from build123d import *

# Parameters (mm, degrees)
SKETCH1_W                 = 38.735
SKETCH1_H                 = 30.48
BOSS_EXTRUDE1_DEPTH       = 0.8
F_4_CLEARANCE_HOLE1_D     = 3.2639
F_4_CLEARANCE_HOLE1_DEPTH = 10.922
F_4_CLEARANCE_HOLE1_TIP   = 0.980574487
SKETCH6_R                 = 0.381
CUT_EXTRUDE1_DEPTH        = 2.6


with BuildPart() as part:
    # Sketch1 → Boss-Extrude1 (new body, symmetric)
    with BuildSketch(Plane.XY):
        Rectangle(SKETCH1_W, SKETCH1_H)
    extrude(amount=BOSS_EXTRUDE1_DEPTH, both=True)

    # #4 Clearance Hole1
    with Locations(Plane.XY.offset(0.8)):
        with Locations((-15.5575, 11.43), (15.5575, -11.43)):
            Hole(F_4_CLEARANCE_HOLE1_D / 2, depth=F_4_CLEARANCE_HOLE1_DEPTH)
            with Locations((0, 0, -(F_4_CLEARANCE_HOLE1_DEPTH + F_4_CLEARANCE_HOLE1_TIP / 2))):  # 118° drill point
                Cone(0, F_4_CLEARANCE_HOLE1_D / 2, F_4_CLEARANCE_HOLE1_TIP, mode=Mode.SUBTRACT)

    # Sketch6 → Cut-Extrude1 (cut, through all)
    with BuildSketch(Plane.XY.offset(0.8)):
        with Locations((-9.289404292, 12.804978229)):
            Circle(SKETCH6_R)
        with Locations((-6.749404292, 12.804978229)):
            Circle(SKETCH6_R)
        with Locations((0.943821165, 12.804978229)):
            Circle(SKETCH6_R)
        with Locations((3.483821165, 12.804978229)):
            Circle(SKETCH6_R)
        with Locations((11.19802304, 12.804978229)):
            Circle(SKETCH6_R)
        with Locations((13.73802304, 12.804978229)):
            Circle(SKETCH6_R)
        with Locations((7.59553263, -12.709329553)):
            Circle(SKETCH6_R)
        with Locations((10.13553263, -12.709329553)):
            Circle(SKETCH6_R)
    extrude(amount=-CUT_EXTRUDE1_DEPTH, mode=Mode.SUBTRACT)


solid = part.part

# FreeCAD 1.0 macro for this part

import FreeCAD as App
import Part
import Sketcher

V = App.Vector
Q = App.Units.Quantity

doc = App.newDocument("Part")
body = doc.addObject("PartDesign::Body", "Body")

sketch1 = body.newObject("Sketcher::SketchObject", "Sketch")
sketch1.AttachmentSupport = (doc.getObject("XY_Plane"), [""])
sketch1.MapMode = "FlatFace"
sketch1.addGeometry(Part.LineSegment(V(-19, 15, 0), V(-19, -15, 0)), False)
sketch1.addGeometry(Part.LineSegment(V(-19, -15, 0), V(19, -15, 0)), False)
sketch1.addGeometry(Part.LineSegment(V(19, -15, 0), V(19, 15, 0)), False)
sketch1.addGeometry(Part.LineSegment(V(19, 15, 0), V(-19, 15, 0)), False)
sketch1.addConstraint(Sketcher.Constraint("Coincident", 0, 2, 1, 1))
sketch1.addConstraint(Sketcher.Constraint("Coincident", 1, 2, 2, 1))
sketch1.addConstraint(Sketcher.Constraint("Coincident", 2, 2, 3, 1))
sketch1.addConstraint(Sketcher.Constraint("Coincident", 3, 2, 0, 1))
sketch1.addConstraint(Sketcher.Constraint("Vertical", 0))
sketch1.addConstraint(Sketcher.Constraint("Horizontal", 1))
sketch1.addConstraint(Sketcher.Constraint("Vertical", 2))
sketch1.addConstraint(Sketcher.Constraint("Horizontal", 3))
sketch1.addConstraint(Sketcher.Constraint("Symmetric", 0, 2, 2, 2, -1, 1))
sketch1.addConstraint(Sketcher.Constraint("DistanceY", 0, 2, 0, 1, Q("1.2 in")))
sketch1.addConstraint(Sketcher.Constraint("DistanceX", 1, 1, 1, 2, Q("1.525 in")))
pad1 = body.newObject("PartDesign::Pad", "Pad")
pad1.Profile = sketch1
pad1.Length = 1.6
pad1.Midplane = True

sketch2 = body.newObject("Sketcher::SketchObject", "Sketch001")
sketch2.AttachmentSupport = (doc.getObject("XY_Plane"), [""])
sketch2.MapMode = "FlatFace"
sketch2.AttachmentOffset = App.Placement(V(0, 0, 0.8), App.Rotation())
sketch2.addGeometry(Part.Circle(V(-15.6, 11.4, 0), V(0, 0, 1), 1.6), False)
sketch2.addGeometry(Part.Circle(V(15.6, -11.4, 0), V(0, 0, 1), 1.6), False)
sketch2.addConstraint(Sketcher.Constraint("Equal", 0, 1))
sketch2.addConstraint(Sketcher.Constraint("Symmetric", 0, 3, 1, 3, -1, 1))
sketch2.addConstraint(Sketcher.Constraint("Diameter", 0, Q("0.1285 in")))
sketch2.addConstraint(Sketcher.Constraint("DistanceY", 1, 3, 0, 3, Q("0.9 in")))
sketch2.addConstraint(Sketcher.Constraint("DistanceX", 0, 3, 1, 3, Q("1.225 in")))
doc.recompute()
hole = body.newObject("PartDesign::Hole", "Hole")
hole.Profile = sketch2
hole.ThreadType = "None"
hole.Diameter = Q("0.1285 in")
hole.DepthType = "Dimension"
hole.Depth = Q("0.43 in")
hole.DrillPoint = "Angled"
hole.DrillPointAngle = 118

sketch3 = body.newObject("Sketcher::SketchObject", "Sketch002")
sketch3.AttachmentSupport = (doc.getObject("XY_Plane"), [""])
sketch3.MapMode = "FlatFace"
sketch3.AttachmentOffset = App.Placement(V(0, 0, 0.8), App.Rotation())
sketch3.addGeometry(Part.Circle(V(-9.29, 12.8, 0), V(0, 0, 1), 0.38), False)
sketch3.addGeometry(Part.Circle(V(-6.75, 12.8, 0), V(0, 0, 1), 0.38), False)
sketch3.addGeometry(Part.Circle(V(0.94, 12.8, 0), V(0, 0, 1), 0.38), False)
sketch3.addGeometry(Part.Circle(V(3.48, 12.8, 0), V(0, 0, 1), 0.38), False)
sketch3.addGeometry(Part.Circle(V(11.2, 12.8, 0), V(0, 0, 1), 0.38), False)
sketch3.addGeometry(Part.Circle(V(13.74, 12.8, 0), V(0, 0, 1), 0.38), False)
sketch3.addGeometry(Part.Circle(V(7.6, -12.71, 0), V(0, 0, 1), 0.38), False)
sketch3.addGeometry(Part.Circle(V(10.14, -12.71, 0), V(0, 0, 1), 0.38), False)
sketch3.addConstraint(Sketcher.Constraint("Equal", 0, 1))
sketch3.addConstraint(Sketcher.Constraint("Equal", 1, 2))
sketch3.addConstraint(Sketcher.Constraint("Equal", 2, 3))
sketch3.addConstraint(Sketcher.Constraint("Equal", 3, 4))
sketch3.addConstraint(Sketcher.Constraint("Equal", 4, 5))
sketch3.addConstraint(Sketcher.Constraint("Equal", 5, 6))
sketch3.addConstraint(Sketcher.Constraint("Equal", 6, 7))
sketch3.addConstraint(Sketcher.Constraint("Horizontal", 0, 3, 1, 3))
sketch3.addConstraint(Sketcher.Constraint("Horizontal", 1, 3, 2, 3))
sketch3.addConstraint(Sketcher.Constraint("Horizontal", 2, 3, 3, 3))
sketch3.addConstraint(Sketcher.Constraint("Horizontal", 3, 3, 4, 3))
sketch3.addConstraint(Sketcher.Constraint("Horizontal", 4, 3, 5, 3))
sketch3.addConstraint(Sketcher.Constraint("Horizontal", 6, 3, 7, 3))
sketch3.addConstraint(Sketcher.Constraint("Diameter", 0, Q("0.03 in")))
sketch3.addConstraint(Sketcher.Constraint("DistanceX", 0, 3, 1, 3, Q("0.1 in")))
sketch3.addConstraint(Sketcher.Constraint("DistanceX", 2, 3, 3, 3, Q("0.1 in")))
sketch3.addConstraint(Sketcher.Constraint("DistanceX", 4, 3, 5, 3, Q("0.1 in")))
sketch3.addConstraint(Sketcher.Constraint("DistanceX", 6, 3, 7, 3, Q("0.1 in")))
sketch3.addConstraint(Sketcher.Constraint("DistanceX", 3, 3, 4, 3, Q("7.714202 mm")))
sketch3.addConstraint(Sketcher.Constraint("DistanceY", -1, 1, 0, 3, Q("12.804978 mm")))
sketch3.addConstraint(Sketcher.Constraint("DistanceX", -1, 1, 2, 3, Q("0.943821 mm")))
sketch3.addConstraint(Sketcher.Constraint("DistanceY", 6, 3, -1, 1, Q("12.70933 mm")))
sketch3.addConstraint(Sketcher.Constraint("DistanceX", 6, 3, 4, 3, Q("3.60249 mm")))
sketch3.addConstraint(Sketcher.Constraint("DistanceX", 0, 3, -1, 1, Q("9.289404 mm")))
pocket1 = body.newObject("PartDesign::Pocket", "Pocket")
pocket1.Profile = sketch3
pocket1.Type = "ThroughAll"

doc.recompute()
